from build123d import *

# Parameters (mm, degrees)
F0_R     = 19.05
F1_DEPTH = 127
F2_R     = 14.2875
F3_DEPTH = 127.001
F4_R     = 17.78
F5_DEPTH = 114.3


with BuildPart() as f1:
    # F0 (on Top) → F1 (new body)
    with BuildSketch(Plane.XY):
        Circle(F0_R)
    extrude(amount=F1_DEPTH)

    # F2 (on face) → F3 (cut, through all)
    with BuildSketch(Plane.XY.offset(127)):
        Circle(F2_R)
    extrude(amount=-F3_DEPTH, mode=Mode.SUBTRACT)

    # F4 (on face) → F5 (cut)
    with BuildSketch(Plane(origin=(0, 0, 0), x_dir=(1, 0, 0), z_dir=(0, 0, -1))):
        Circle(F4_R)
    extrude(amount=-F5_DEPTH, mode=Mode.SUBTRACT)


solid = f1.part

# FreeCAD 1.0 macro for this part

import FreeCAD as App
import Part
import Sketcher

V = App.Vector
Q = App.Units.Quantity

doc = App.newDocument("Part")
body = doc.addObject("PartDesign::Body", "Body")

sketch1 = body.newObject("Sketcher::SketchObject", "Sketch")
sketch1.AttachmentSupport = (doc.getObject("XY_Plane"), [""])
sketch1.MapMode = "FlatFace"
sketch1.addGeometry(Part.Circle(V(0, 0, 0), V(0, 0, 1), 19), False)
sketch1.addConstraint([
    Sketcher.Constraint("Coincident", 0, 3, -1, 1),
    Sketcher.Constraint("Diameter", 0, Q("1.5 in")),
])
pad1 = body.newObject("PartDesign::Pad", "Pad")
pad1.Profile = sketch1
pad1.Length = Q("5 in")

sketch2 = body.newObject("Sketcher::SketchObject", "Sketch001")
sketch2.AttachmentSupport = (doc.getObject("XY_Plane"), [""])
sketch2.MapMode = "FlatFace"
sketch2.AttachmentOffset = App.Placement(V(0, 0, 5 * 25.4), App.Rotation())
sketch2.addGeometry(Part.Circle(V(0, 0, 0), V(0, 0, 1), 14), False)
sketch2.addConstraint([
    Sketcher.Constraint("Coincident", 0, 3, -1, 1),
    Sketcher.Constraint("Diameter", 0, Q("1.125 in")),
])
pocket1 = body.newObject("PartDesign::Pocket", "Pocket")
pocket1.Profile = sketch2
pocket1.Type = "ThroughAll"

sketch3 = body.newObject("Sketcher::SketchObject", "Sketch002")
sketch3.AttachmentSupport = (doc.getObject("XY_Plane"), [""])
sketch3.MapMode = "FlatFace"
sketch3.addGeometry(Part.Circle(V(0, 0, 0), V(0, 0, 1), 18), False)
sketch3.addConstraint([
    Sketcher.Constraint("Coincident", 0, 3, -1, 1),
    Sketcher.Constraint("Diameter", 0, Q("1.4 in")),
])
pocket2 = body.newObject("PartDesign::Pocket", "Pocket001")
pocket2.Profile = sketch3
pocket2.Length = Q("4.5 in")
pocket2.Reversed = True

doc.recompute()
